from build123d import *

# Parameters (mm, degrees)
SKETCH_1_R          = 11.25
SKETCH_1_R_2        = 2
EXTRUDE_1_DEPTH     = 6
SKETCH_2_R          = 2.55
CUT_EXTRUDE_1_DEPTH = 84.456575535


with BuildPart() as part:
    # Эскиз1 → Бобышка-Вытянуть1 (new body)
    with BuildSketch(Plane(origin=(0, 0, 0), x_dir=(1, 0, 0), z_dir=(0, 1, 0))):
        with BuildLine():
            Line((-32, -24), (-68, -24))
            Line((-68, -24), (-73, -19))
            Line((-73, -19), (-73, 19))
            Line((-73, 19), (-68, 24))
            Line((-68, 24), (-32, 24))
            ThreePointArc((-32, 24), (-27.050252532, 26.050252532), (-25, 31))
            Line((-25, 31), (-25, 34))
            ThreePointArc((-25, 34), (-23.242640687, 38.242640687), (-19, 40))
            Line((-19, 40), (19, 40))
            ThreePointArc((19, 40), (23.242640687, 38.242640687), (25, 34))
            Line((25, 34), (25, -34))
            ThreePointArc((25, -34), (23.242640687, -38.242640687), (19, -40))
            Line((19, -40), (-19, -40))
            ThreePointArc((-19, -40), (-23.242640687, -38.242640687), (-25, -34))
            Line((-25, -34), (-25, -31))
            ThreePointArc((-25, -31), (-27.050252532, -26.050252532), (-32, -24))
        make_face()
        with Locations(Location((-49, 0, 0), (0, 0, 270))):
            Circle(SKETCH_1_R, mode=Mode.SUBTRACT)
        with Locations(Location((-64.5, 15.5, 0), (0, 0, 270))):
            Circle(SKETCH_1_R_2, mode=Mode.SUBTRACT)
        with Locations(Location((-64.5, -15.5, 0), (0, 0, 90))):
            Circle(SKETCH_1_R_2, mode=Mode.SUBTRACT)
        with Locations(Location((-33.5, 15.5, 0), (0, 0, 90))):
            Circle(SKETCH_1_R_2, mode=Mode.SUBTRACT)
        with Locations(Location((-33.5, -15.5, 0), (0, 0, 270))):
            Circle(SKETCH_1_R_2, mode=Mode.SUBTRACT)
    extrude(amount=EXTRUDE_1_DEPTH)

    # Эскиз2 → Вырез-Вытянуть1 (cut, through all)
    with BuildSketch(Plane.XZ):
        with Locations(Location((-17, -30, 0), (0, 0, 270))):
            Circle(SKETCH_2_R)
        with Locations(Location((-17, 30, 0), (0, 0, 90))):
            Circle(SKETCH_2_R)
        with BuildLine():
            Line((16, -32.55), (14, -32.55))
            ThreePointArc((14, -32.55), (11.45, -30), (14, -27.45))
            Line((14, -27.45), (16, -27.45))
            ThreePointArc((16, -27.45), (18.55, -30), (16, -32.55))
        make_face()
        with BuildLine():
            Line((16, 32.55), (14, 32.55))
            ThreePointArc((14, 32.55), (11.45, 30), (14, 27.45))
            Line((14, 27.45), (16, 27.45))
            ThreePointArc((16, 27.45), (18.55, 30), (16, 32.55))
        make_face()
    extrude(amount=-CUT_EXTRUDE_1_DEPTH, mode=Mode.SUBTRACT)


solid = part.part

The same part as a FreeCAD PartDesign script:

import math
import FreeCAD as App
import Part
import Sketcher

V = App.Vector
Q = App.Units.Quantity

doc = App.newDocument("Part")
body = doc.addObject("PartDesign::Body", "Body")

# Sketch on XZ plane
sketch1 = body.newObject("Sketcher::SketchObject", "Sketch")
sketch1.AttachmentSupport = (doc.getObject("XZ_Plane"), [""])
sketch1.MapMode = "FlatFace"
sketch1.addGeometry(Part.LineSegment(V(-68, 24, 0), V(-32, 24, 0)), False)
sketch1.addGeometry(Part.ArcOfCircle(Part.Circle(V(-32, 31, 0), V(0, 0, 1), 7), math.radians(-90), math.radians(0)), False)
sketch1.addGeometry(Part.LineSegment(V(-25, 31, 0), V(-25, 34, 0)), False)
sketch1.addGeometry(Part.ArcOfCircle(Part.Circle(V(-19, 34, 0), V(0, 0, 1), 6), math.radians(90), math.radians(180)), False)
sketch1.addGeometry(Part.LineSegment(V(-19, 40, 0), V(19, 40, 0)), False)
sketch1.addGeometry(Part.ArcOfCircle(Part.Circle(V(19, 34, 0), V(0, 0, 1), 6), math.radians(0), math.radians(90)), False)
sketch1.addGeometry(Part.LineSegment(V(25, 34, 0), V(25, -34, 0)), False)
sketch1.addGeometry(Part.ArcOfCircle(Part.Circle(V(19, -34, 0), V(0, 0, 1), 6), math.radians(-90), math.radians(0)), False)
sketch1.addGeometry(Part.LineSegment(V(19, -40, 0), V(-19, -40, 0)), False)
sketch1.addGeometry(Part.ArcOfCircle(Part.Circle(V(-19, -34, 0), V(0, 0, 1), 6), math.radians(180), math.radians(270)), False)
sketch1.addGeometry(Part.LineSegment(V(-25, -34, 0), V(-25, -31, 0)), False)
sketch1.addGeometry(Part.ArcOfCircle(Part.Circle(V(-32, -31, 0), V(0, 0, 1), 7), math.radians(0), math.radians(90)), False)
sketch1.addGeometry(Part.LineSegment(V(-32, -24, 0), V(-68, -24, 0)), False)
sketch1.addGeometry(Part.LineSegment(V(-68, -24, 0), V(-73, -19, 0)), False)
sketch1.addGeometry(Part.LineSegment(V(-73, -19, 0), V(-73, 19, 0)), False)
sketch1.addGeometry(Part.LineSegment(V(-73, 19, 0), V(-68, 24, 0)), False)
sketch1.addGeometry(Part.Circle(V(-33.5, 15.5, 0), V(0, 0, 1), 2), False)
sketch1.addGeometry(Part.Circle(V(-64.5, 15.5, 0), V(0, 0, 1), 2), False)
sketch1.addGeometry(Part.Circle(V(-49, 0, 0), V(0, 0, 1), 11.25), False)
sketch1.addGeometry(Part.Circle(V(-33.5, -15.5, 0), V(0, 0, 1), 2), False)
sketch1.addGeometry(Part.Circle(V(-64.5, -15.5, 0), V(0, 0, 1), 2), False)
sketch1.addConstraint(Sketcher.Constraint("Tangent", 0, 2, 1, 1))
sketch1.addConstraint(Sketcher.Constraint("Tangent", 1, 2, 2, 1))
sketch1.addConstraint(Sketcher.Constraint("Tangent", 2, 2, 3, 2))
sketch1.addConstraint(Sketcher.Constraint("Tangent", 3, 1, 4, 1))
sketch1.addConstraint(Sketcher.Constraint("Tangent", 4, 2, 5, 2))
sketch1.addConstraint(Sketcher.Constraint("Tangent", 5, 1, 6, 1))
sketch1.addConstraint(Sketcher.Constraint("Tangent", 6, 2, 7, 2))
sketch1.addConstraint(Sketcher.Constraint("Tangent", 7, 1, 8, 1))
sketch1.addConstraint(Sketcher.Constraint("Tangent", 8, 2, 9, 2))
sketch1.addConstraint(Sketcher.Constraint("Tangent", 9, 1, 10, 1))
sketch1.addConstraint(Sketcher.Constraint("Tangent", 10, 2, 11, 1))
sketch1.addConstraint(Sketcher.Constraint("Tangent", 11, 2, 12, 1))
sketch1.addConstraint(Sketcher.Constraint("Coincident", 12, 2, 13, 1))
sketch1.addConstraint(Sketcher.Constraint("Coincident", 13, 2, 14, 1))
sketch1.addConstraint(Sketcher.Constraint("Coincident", 14, 2, 15, 1))
sketch1.addConstraint(Sketcher.Constraint("Coincident", 15, 2, 0, 1))
sketch1.addConstraint(Sketcher.Constraint("Horizontal", 0))
sketch1.addConstraint(Sketcher.Constraint("Vertical", 2))
sketch1.addConstraint(Sketcher.Constraint("Horizontal", 4))
sketch1.addConstraint(Sketcher.Constraint("Vertical", 6))
sketch1.addConstraint(Sketcher.Constraint("Horizontal", 8))
sketch1.addConstraint(Sketcher.Constraint("Vertical", 10))
sketch1.addConstraint(Sketcher.Constraint("Horizontal", 12))
sketch1.addConstraint(Sketcher.Constraint("Vertical", 14))
sketch1.addConstraint(Sketcher.Constraint("Equal", 3, 5))
sketch1.addConstraint(Sketcher.Constraint("Equal", 5, 7))
sketch1.addConstraint(Sketcher.Constraint("Equal", 7, 9))
sketch1.addConstraint(Sketcher.Constraint("Equal", 1, 11))
sketch1.addConstraint(Sketcher.Constraint("Equal", 16, 17))
sketch1.addConstraint(Sketcher.Constraint("Equal", 17, 19))
sketch1.addConstraint(Sketcher.Constraint("Equal", 19, 20))
sketch1.addConstraint(Sketcher.Constraint("Symmetric", 3, 3, 7, 3, -1, 1))
sketch1.addConstraint(Sketcher.Constraint("Symmetric", 1, 3, 11, 3, -1))
sketch1.addConstraint(Sketcher.Constraint("Symmetric", 16, 3, 19, 3, -1))
sketch1.addConstraint(Sketcher.Constraint("Symmetric", 17, 3, 20, 3, -1))
sketch1.addConstraint(Sketcher.Constraint("PointOnObject", 18, 3, -1))
sketch1.addConstraint(Sketcher.Constraint("Perpendicular", 13, 15))
sketch1.addConstraint(Sketcher.Constraint("Horizontal", 16, 3, 17, 3))
sketch1.addConstraint(Sketcher.Constraint("Vertical", 12, 2, 15, 2))
sketch1.addConstraint(Sketcher.Constraint("Equal", 8, 14))
sketch1.addConstraint(Sketcher.Constraint("Equal", 13, 15))
sketch1.addConstraint(Sketcher.Constraint("Diameter", 16, Q("4 mm")))
sketch1.addConstraint(Sketcher.Constraint("Radius", 1, Q("7 mm")))
sketch1.addConstraint(Sketcher.Constraint("Radius", 3, Q("6 mm")))
sketch1.addConstraint(Sketcher.Constraint("Diameter", 18, Q("22.5 mm")))
sketch1.addConstraint(Sketcher.Constraint("DistanceX", 0, 1, 0, 2, Q("36 mm")))
sketch1.addConstraint(Sketcher.Constraint("DistanceX", 4, 1, 4, 2, Q("38 mm")))
sketch1.addConstraint(Sketcher.Constraint("DistanceY", 2, 1, 2, 2, Q("3 mm")))
sketch1.addConstraint(Sketcher.Constraint("DistanceY", 6, 2, 6, 1, Q("68 mm")))
sketch1.addConstraint(Sketcher.Constraint("DistanceX", 18, 3, -1, 1, Q("49 mm")))
sketch1.addConstraint(Sketcher.Constraint("DistanceX", 17, 3, 16, 3, Q("31 mm")))
sketch1.addConstraint(Sketcher.Constraint("DistanceY", 19, 3, 16, 3, Q("31 mm")))
sketch1.addConstraint(Sketcher.Constraint("DistanceX", 16, 3, -1, 1, Q("33.5 mm")))
pad1 = body.newObject("PartDesign::Pad", "Pad")
pad1.Profile = sketch1
pad1.Length = 6
pad1.Reversed = True

# Sketch on XZ plane
sketch2 = body.newObject("Sketcher::SketchObject", "Sketch001")
sketch2.AttachmentSupport = (doc.getObject("XZ_Plane"), [""])
sketch2.MapMode = "FlatFace"
sketch2.addGeometry(Part.Circle(V(-17, -30, 0), V(0, 0, 1), 2.55), False)
sketch2.addGeometry(Part.Circle(V(-17, 30, 0), V(0, 0, 1), 2.55), False)
sketch2.addGeometry(Part.LineSegment(V(14, -32.55, 0), V(16, -32.55, 0)), False)
sketch2.addGeometry(Part.ArcOfCircle(Part.Circle(V(16, -30, 0), V(0, 0, 1), 2.55), math.radians(-90), math.radians(90)), False)
sketch2.addGeometry(Part.LineSegment(V(16, -27.45, 0), V(14, -27.45, 0)), False)
sketch2.addGeometry(Part.ArcOfCircle(Part.Circle(V(14, -30, 0), V(0, 0, 1), 2.55), math.radians(90), math.radians(270)), False)
sketch2.addGeometry(Part.LineSegment(V(16, 32.55, 0), V(14, 32.55, 0)), False)
sketch2.addGeometry(Part.ArcOfCircle(Part.Circle(V(14, 30, 0), V(0, 0, 1), 2.55), math.radians(90), math.radians(270)), False)
sketch2.addGeometry(Part.LineSegment(V(14, 27.45, 0), V(16, 27.45, 0)), False)
sketch2.addGeometry(Part.ArcOfCircle(Part.Circle(V(16, 30, 0), V(0, 0, 1), 2.55), math.radians(-90), math.radians(90)), False)
sketch2.addConstraint(Sketcher.Constraint("Tangent", 2, 2, 3, 1))
sketch2.addConstraint(Sketcher.Constraint("Tangent", 3, 2, 4, 1))
sketch2.addConstraint(Sketcher.Constraint("Tangent", 4, 2, 5, 1))
sketch2.addConstraint(Sketcher.Constraint("Tangent", 5, 2, 2, 1))
sketch2.addConstraint(Sketcher.Constraint("Tangent", 6, 2, 7, 1))
sketch2.addConstraint(Sketcher.Constraint("Tangent", 7, 2, 8, 1))
sketch2.addConstraint(Sketcher.Constraint("Tangent", 8, 2, 9, 1))
sketch2.addConstraint(Sketcher.Constraint("Tangent", 9, 2, 6, 1))
sketch2.addConstraint(Sketcher.Constraint("Horizontal", 2))
sketch2.addConstraint(Sketcher.Constraint("Horizontal", 4))
sketch2.addConstraint(Sketcher.Constraint("Horizontal", 6))
sketch2.addConstraint(Sketcher.Constraint("Horizontal", 8))
sketch2.addConstraint(Sketcher.Constraint("Equal", 0, 1))
sketch2.addConstraint(Sketcher.Constraint("Equal", 1, 3))
sketch2.addConstraint(Sketcher.Constraint("Equal", 5, 7))
sketch2.addConstraint(Sketcher.Constraint("Symmetric", 0, 3, 1, 3, -1))
sketch2.addConstraint(Sketcher.Constraint("Symmetric", 5, 3, 7, 3, -1))
sketch2.addConstraint(Sketcher.Constraint("Horizontal", 0, 3, 3, 3))
sketch2.addConstraint(Sketcher.Constraint("Vertical", 3, 3, 9, 3))
sketch2.addConstraint(Sketcher.Constraint("Diameter", 0, Q("5.1 mm")))
sketch2.addConstraint(Sketcher.Constraint("DistanceX", 2, 1, 2, 2, Q("2 mm")))
sketch2.addConstraint(Sketcher.Constraint("DistanceX", 0, 3, -1, 1, Q("17 mm")))
sketch2.addConstraint(Sketcher.Constraint("DistanceY", 0, 3, -1, 1, Q("30 mm")))
sketch2.addConstraint(Sketcher.Constraint("DistanceX", -1, 1, 3, 3, Q("16 mm")))
pocket1 = body.newObject("PartDesign::Pocket", "Pocket")
pocket1.Profile = sketch2
pocket1.Type = "ThroughAll"

doc.recompute()
